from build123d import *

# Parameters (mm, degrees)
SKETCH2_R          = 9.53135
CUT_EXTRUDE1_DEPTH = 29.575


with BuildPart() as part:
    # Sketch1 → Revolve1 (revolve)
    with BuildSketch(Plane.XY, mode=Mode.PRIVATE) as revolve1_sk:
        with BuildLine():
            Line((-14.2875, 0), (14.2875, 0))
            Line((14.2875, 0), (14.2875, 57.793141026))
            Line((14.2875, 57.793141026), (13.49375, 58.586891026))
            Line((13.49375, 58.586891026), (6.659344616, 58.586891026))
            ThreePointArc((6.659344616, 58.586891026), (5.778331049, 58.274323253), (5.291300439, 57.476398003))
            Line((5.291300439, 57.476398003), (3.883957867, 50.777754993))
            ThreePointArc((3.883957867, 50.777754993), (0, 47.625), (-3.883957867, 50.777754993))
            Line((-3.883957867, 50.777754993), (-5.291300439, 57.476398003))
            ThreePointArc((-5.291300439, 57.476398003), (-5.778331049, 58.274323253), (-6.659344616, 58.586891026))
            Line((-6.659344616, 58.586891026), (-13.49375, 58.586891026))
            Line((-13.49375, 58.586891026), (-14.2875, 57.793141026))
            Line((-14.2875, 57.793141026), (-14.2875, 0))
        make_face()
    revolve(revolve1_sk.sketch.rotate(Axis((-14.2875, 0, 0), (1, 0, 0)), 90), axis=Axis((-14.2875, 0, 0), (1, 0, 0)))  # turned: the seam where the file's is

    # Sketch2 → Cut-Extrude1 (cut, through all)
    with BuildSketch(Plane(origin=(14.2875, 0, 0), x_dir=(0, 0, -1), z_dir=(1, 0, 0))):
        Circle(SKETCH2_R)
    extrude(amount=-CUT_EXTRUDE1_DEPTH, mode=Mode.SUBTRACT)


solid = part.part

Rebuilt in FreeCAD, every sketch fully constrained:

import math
import FreeCAD as App
import Part
import Sketcher
Q = App.Units.Quantity

doc = App.newDocument("Part")
params = doc.addObject("Spreadsheet::Sheet", "Params")
for row, (alias, value) in enumerate([
    ("sketch1_radius", "0.15625 in"),
    ("sketch1_width", "1.125 in"),
    ("revolution_angle", "360 deg"),
], start=1):
    params.set(f"A{row}", alias)
    params.set(f"B{row}", "=" + value)
    params.setAlias(f"B{row}", alias)

body = doc.addObject("PartDesign::Body", "Body")

# Sketch on XY plane
sketch1 = body.newObject("Sketcher::SketchObject", "Sketch")
sketch1.AttachmentSupport = (doc.getObject("XY_Plane"), [""])
sketch1.MapMode = "FlatFace"
sketch1.addGeometry([
    Part.LineSegment(App.Vector(-14.3, 0, 0), App.Vector(14.3, 0, 0)),  # 0
    Part.LineSegment(App.Vector(14.3, 0, 0), App.Vector(14.3, 57.8, 0)),  # 1
    Part.LineSegment(App.Vector(14.3, 57.8, 0), App.Vector(13.5, 58.6, 0)),  # 2
    Part.LineSegment(App.Vector(13.5, 58.6, 0), App.Vector(6.7, 58.6, 0)),  # 3
    Part.ArcOfCircle(Part.Circle(App.Vector(6.7, 57.2, 0), App.Vector(0, 0, 1), 1.4), math.radians(90), math.radians(168)),  # 4
    Part.LineSegment(App.Vector(5.3, 57.5, 0), App.Vector(3.9, 50.8, 0)),  # 5
    Part.ArcOfCircle(Part.Circle(App.Vector(0, 51.6, 0), App.Vector(0, 0, 1), 4), math.radians(-168), math.radians(-12)),  # 6
    Part.LineSegment(App.Vector(-3.9, 50.8, 0), App.Vector(-5.3, 57.5, 0)),  # 7
    Part.ArcOfCircle(Part.Circle(App.Vector(-6.7, 57.2, 0), App.Vector(0, 0, 1), 1.4), math.radians(12), math.radians(90)),  # 8
    Part.LineSegment(App.Vector(-6.7, 58.6, 0), App.Vector(-13.5, 58.6, 0)),  # 9
    Part.LineSegment(App.Vector(-13.5, 58.6, 0), App.Vector(-14.3, 57.8, 0)),  # 10
    Part.LineSegment(App.Vector(-14.3, 57.8, 0), App.Vector(-14.3, 0, 0)),  # 11
], False)
sketch1.addConstraint([
    Sketcher.Constraint("Coincident", 0, 2, 1, 1),
    Sketcher.Constraint("Coincident", 1, 2, 2, 1),
    Sketcher.Constraint("Coincident", 2, 2, 3, 1),
    Sketcher.Constraint("Tangent", 3, 2, 4, 1),
    Sketcher.Constraint("Tangent", 4, 2, 5, 1),
    Sketcher.Constraint("Tangent", 5, 2, 6, 2),
    Sketcher.Constraint("Tangent", 6, 1, 7, 1),
    Sketcher.Constraint("Tangent", 7, 2, 8, 1),
    Sketcher.Constraint("Tangent", 8, 2, 9, 1),
    Sketcher.Constraint("Coincident", 9, 2, 10, 1),
    Sketcher.Constraint("Coincident", 10, 2, 11, 1),
    Sketcher.Constraint("Coincident", 11, 2, 0, 1),
    Sketcher.Constraint("Horizontal", 0),
    Sketcher.Constraint("Vertical", 1),
    Sketcher.Constraint("Horizontal", 3),
    Sketcher.Constraint("Horizontal", 9),
    Sketcher.Constraint("Vertical", 11),
    Sketcher.Constraint("Equal", 4, 8),
    Sketcher.Constraint("Symmetric", 0, 2, 11, 2, -1, 1),
    Sketcher.Constraint("Symmetric", 4, 3, 8, 3, -2),
    Sketcher.Constraint("PointOnObject", 6, 3, -2),
    Sketcher.Constraint("Perpendicular", 2, 10),
    Sketcher.Constraint("Horizontal", 1, 2, 10, 2),
    Sketcher.Constraint("Equal", 3, 9),
    Sketcher.Constraint("Radius", 6, Q("0.15625 in")),
    Sketcher.Constraint("DistanceX", 0, 1, 0, 2, Q("1.125 in")),
    Sketcher.Constraint("DistanceY", -1, 1, 6, 3, Q("2.03125 in")),
    Sketcher.Constraint("DistanceX", -1, 1, 2, 2, Q("0.53125 in")),
    Sketcher.Constraint("Radius", 4, 1.39791),
    Sketcher.Constraint("DistanceY", 1, 1, 1, 2, 57.793141),
    Sketcher.Constraint("DistanceX", -1, 1, 4, 2, 5.2913),
])
sketch1.setExpression("Constraints[24]", "Params.sketch1_radius")
sketch1.setExpression("Constraints[25]", "Params.sketch1_width")
revolution = body.newObject("PartDesign::Revolution", "Revolution")
revolution.Profile = sketch1
revolution.ReferenceAxis = (sketch1, ["H_Axis"])
revolution.setExpression("Angle", "Params.revolution_angle")

# Sketch on YZ plane
sketch2 = body.newObject("Sketcher::SketchObject", "Sketch001")
sketch2.AttachmentSupport = (doc.getObject("YZ_Plane"), [""])
sketch2.MapMode = "FlatFace"
sketch2.AttachmentOffset = App.Placement(App.Vector(0, 0, 0.5625 * 25.4), App.Rotation())
sketch2.addGeometry(Part.Circle(App.Vector(0, 0, 0), App.Vector(0, 0, 1), 10), False)
sketch2.addConstraint([
    Sketcher.Constraint("Coincident", 0, 3, -1, 1),
    Sketcher.Constraint("Diameter", 0, Q("0.7505 in")),
])
pocket1 = body.newObject("PartDesign::Pocket", "Pocket")
pocket1.Profile = sketch2
pocket1.Type = "ThroughAll"

doc.recompute()
